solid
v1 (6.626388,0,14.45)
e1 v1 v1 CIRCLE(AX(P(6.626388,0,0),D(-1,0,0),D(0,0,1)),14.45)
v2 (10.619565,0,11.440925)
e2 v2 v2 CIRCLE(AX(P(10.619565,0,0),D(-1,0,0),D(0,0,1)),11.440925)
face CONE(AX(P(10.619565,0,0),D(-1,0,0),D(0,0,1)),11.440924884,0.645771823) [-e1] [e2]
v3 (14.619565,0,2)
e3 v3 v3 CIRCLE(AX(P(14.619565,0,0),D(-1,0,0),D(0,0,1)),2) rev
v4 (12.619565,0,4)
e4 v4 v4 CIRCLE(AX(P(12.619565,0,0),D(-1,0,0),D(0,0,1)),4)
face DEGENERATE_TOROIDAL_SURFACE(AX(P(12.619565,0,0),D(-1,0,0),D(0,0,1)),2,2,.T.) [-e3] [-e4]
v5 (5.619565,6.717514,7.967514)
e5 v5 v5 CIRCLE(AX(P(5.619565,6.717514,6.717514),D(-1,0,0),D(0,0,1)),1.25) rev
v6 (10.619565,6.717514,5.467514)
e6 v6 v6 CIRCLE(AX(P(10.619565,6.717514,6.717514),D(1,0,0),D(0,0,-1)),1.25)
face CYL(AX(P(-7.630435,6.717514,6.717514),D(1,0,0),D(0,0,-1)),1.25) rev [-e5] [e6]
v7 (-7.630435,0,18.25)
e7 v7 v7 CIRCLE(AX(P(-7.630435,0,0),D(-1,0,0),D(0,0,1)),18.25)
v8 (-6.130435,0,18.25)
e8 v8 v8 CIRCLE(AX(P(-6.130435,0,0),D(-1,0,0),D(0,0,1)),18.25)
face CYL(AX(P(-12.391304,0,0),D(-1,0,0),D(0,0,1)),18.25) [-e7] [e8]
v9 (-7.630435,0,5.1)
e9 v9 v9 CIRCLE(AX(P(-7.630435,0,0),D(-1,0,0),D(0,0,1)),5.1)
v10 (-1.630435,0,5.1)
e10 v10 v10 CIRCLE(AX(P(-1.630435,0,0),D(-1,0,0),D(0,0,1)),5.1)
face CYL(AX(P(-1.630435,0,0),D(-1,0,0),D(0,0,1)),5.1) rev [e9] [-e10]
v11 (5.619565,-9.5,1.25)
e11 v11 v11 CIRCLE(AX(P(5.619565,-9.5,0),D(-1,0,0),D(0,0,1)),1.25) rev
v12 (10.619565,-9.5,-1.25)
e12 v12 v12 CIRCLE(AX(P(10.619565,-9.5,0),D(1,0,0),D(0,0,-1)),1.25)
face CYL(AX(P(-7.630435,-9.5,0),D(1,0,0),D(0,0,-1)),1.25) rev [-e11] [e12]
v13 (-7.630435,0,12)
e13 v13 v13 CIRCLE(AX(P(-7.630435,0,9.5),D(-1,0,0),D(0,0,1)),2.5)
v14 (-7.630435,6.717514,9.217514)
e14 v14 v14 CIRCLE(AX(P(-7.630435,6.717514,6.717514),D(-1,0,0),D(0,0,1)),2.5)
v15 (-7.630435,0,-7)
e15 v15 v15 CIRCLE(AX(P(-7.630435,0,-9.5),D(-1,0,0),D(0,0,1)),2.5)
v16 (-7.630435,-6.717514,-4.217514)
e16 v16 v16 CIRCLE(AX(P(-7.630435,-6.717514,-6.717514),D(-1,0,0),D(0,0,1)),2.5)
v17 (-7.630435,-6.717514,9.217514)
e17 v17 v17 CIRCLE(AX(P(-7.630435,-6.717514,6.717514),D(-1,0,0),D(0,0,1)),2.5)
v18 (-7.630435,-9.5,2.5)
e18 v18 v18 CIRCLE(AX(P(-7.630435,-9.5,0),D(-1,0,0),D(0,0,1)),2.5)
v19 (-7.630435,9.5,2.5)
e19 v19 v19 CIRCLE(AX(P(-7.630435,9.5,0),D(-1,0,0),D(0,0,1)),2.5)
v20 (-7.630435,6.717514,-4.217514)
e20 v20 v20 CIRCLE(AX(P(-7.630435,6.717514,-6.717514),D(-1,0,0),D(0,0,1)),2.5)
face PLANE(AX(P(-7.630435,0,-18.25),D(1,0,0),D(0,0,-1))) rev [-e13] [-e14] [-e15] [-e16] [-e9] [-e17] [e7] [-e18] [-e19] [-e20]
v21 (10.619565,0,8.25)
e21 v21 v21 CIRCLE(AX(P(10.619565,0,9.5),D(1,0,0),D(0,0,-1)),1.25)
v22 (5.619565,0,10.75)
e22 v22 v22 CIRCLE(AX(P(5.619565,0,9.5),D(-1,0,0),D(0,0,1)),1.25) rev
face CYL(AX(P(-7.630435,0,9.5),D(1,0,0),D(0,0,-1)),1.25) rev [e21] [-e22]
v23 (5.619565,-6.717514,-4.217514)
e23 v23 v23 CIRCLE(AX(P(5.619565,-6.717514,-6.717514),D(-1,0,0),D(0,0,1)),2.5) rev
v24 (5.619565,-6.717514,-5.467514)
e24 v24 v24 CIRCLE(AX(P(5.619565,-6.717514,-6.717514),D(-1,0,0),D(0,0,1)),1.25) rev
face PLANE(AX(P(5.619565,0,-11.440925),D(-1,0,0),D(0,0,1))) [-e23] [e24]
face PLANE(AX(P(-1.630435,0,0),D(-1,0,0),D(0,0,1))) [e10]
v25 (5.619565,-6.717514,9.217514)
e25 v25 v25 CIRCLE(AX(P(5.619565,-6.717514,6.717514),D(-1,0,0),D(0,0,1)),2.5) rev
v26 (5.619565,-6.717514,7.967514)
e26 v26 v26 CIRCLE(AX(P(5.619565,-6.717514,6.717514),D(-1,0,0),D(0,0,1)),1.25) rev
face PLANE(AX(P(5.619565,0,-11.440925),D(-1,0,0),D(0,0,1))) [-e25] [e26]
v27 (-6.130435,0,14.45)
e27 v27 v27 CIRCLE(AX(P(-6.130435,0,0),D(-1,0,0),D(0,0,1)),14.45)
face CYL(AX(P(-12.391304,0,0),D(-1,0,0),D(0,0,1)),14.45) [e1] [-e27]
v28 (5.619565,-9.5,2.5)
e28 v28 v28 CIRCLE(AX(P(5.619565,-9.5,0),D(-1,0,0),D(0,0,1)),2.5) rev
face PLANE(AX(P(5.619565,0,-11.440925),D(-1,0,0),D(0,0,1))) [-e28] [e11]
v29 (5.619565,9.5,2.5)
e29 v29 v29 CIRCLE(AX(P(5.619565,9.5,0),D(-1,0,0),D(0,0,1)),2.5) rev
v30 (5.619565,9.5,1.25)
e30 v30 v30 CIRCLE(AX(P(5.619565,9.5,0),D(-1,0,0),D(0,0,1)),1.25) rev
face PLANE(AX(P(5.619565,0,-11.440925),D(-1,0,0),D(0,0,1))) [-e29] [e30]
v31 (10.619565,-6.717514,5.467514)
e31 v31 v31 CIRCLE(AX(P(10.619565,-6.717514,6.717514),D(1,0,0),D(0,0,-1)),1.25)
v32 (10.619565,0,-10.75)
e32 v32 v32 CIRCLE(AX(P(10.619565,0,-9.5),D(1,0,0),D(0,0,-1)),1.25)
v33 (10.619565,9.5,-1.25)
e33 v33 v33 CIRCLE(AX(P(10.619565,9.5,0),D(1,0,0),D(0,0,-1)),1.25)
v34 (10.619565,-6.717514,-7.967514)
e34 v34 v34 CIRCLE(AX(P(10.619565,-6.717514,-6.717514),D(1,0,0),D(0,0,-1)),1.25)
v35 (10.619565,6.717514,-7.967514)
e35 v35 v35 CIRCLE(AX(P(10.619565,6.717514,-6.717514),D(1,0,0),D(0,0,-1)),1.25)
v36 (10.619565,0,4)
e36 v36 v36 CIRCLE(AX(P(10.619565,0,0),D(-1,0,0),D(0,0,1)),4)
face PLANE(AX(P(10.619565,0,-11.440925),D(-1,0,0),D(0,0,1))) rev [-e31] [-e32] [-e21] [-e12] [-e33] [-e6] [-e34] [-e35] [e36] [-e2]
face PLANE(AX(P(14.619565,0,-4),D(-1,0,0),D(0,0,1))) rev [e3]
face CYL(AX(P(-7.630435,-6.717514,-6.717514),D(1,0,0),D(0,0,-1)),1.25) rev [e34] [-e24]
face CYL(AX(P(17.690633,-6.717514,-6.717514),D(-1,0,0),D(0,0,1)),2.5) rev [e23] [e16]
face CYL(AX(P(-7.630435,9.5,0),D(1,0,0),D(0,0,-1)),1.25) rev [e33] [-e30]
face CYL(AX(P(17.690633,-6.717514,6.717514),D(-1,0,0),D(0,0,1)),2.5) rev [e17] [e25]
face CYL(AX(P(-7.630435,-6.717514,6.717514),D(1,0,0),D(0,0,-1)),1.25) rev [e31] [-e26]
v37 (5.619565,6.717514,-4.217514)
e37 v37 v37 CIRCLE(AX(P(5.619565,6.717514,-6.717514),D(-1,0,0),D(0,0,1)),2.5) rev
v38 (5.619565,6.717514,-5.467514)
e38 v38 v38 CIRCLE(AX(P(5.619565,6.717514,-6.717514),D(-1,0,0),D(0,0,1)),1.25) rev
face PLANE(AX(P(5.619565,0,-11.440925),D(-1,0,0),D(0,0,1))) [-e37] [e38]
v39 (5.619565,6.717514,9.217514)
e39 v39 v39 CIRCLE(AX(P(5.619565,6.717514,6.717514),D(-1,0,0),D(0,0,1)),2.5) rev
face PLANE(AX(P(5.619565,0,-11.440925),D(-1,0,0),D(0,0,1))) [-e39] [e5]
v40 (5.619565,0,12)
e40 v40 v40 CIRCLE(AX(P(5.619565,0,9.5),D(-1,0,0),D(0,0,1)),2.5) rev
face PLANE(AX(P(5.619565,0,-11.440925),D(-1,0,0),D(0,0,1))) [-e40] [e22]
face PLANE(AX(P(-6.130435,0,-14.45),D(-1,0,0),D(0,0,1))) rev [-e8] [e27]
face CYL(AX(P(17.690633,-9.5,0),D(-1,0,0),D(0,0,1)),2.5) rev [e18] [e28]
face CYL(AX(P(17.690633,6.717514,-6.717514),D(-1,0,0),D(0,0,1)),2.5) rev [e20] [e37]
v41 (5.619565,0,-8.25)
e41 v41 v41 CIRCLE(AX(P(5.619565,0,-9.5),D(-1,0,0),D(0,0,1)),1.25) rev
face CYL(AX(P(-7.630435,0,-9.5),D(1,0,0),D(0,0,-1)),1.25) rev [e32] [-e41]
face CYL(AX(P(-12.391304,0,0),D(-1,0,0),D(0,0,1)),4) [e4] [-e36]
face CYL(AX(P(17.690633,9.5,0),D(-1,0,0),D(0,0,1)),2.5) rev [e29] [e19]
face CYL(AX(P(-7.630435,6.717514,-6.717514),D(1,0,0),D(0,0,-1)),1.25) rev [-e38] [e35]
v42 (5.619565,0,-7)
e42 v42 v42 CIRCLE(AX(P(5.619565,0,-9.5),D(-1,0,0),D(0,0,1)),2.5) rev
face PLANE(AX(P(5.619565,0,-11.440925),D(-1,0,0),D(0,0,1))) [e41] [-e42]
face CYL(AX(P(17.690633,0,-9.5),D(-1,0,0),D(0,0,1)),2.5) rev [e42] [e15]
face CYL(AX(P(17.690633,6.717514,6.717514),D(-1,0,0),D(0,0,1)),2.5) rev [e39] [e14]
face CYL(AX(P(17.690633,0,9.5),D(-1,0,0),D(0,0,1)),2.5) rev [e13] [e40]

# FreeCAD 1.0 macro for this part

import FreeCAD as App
import Part
import Sketcher

V = App.Vector
Q = App.Units.Quantity


def edges_at(feature, points):
    """Names of the edges that pass closest to the given points."""
    edges = feature.Shape.Edges
    near = lambda p: min(range(len(edges)), key=lambda i: edges[i].distToShape(Part.Vertex(*p))[0])
    return sorted({f"Edge{near(p) + 1}" for p in points})

doc = App.newDocument("Part")
params = doc.addObject("Spreadsheet::Sheet", "Params")
for row, (alias, value) in enumerate([
    ("sketch1_width", "4 mm"),
    ("sketch1_length", "5 mm"),
    ("sketch1_width2", "1.5 mm"),
    ("sketch1_height", "3.8 mm"),
    ("sketch1_width3", "22.25 mm"),
    ("revolution_angle", "360 deg"),
    ("sketch2_diameter", "2.5 mm"),
    ("fillet_radius", "2 mm"),
    ("sketch3_diameter", "5 mm"),
    ("pocket2_length", "13.25 mm"),
    ("sketch4_diameter", "10.2 mm"),
    ("pocket3_length", "6 mm"),
], start=1):
    params.set(f"A{row}", alias)
    params.set(f"B{row}", "=" + value)
    params.setAlias(f"B{row}", alias)

body = doc.addObject("PartDesign::Body", "Body")

# Sketch on XZ plane
sketch1 = body.newObject("Sketcher::SketchObject", "Sketch")
sketch1.AttachmentSupport = (doc.getObject("XZ_Plane"), [""])
sketch1.MapMode = "FlatFace"
sketch1.addGeometry([
    Part.LineSegment(V(6.6, -14.4, 0), V(-6.1, -14.4, 0)),  # 0
    Part.LineSegment(V(-6.1, -14.4, 0), V(-6.1, -18.2, 0)),  # 1
    Part.LineSegment(V(-6.1, -18.2, 0), V(-7.6, -18.2, 0)),  # 2
    Part.LineSegment(V(-7.6, -18.2, 0), V(-7.6, 0, 0)),  # 3
    Part.LineSegment(V(-7.6, 0, 0), V(14.6, 0, 0)),  # 4
    Part.LineSegment(V(14.6, 0, 0), V(14.6, -4, 0)),  # 5
    Part.LineSegment(V(14.6, -4, 0), V(10.6, -4, 0)),  # 6
    Part.LineSegment(V(10.6, -4, 0), V(10.6, -11.4, 0)),  # 7
    Part.LineSegment(V(10.6, -11.4, 0), V(6.6, -14.4, 0)),  # 8
], False)
sketch1.addConstraint([
    Sketcher.Constraint("Coincident", 0, 2, 1, 1),
    Sketcher.Constraint("Coincident", 1, 2, 2, 1),
    Sketcher.Constraint("Coincident", 2, 2, 3, 1),
    Sketcher.Constraint("Coincident", 3, 2, 4, 1),
    Sketcher.Constraint("Coincident", 4, 2, 5, 1),
    Sketcher.Constraint("Coincident", 5, 2, 6, 1),
    Sketcher.Constraint("Coincident", 6, 2, 7, 1),
    Sketcher.Constraint("Coincident", 7, 2, 8, 1),
    Sketcher.Constraint("Coincident", 8, 2, 0, 1),
    Sketcher.Constraint("Horizontal", 0),
    Sketcher.Constraint("Vertical", 1),
    Sketcher.Constraint("Horizontal", 2),
    Sketcher.Constraint("Vertical", 3),
    Sketcher.Constraint("Horizontal", 4),
    Sketcher.Constraint("Vertical", 5),
    Sketcher.Constraint("Horizontal", 6),
    Sketcher.Constraint("Vertical", 7),
    Sketcher.Constraint("PointOnObject", 3, 2, -1),
    Sketcher.Constraint("Equal", 6, 5),
    Sketcher.Constraint("DistanceX", 6, 2, 6, 1, 4.0),
    Sketcher.Constraint("Angle", 8, Q("-143 deg")),
    Sketcher.Constraint("Distance", 8, 5.0),
    Sketcher.Constraint("DistanceX", 2, 2, 2, 1, 1.5),
    Sketcher.Constraint("DistanceY", 1, 2, 1, 1, 3.8),
    Sketcher.Constraint("DistanceX", 4, 1, 4, 2, 22.25),
    Sketcher.Constraint("DistanceY", 3, 1, 3, 2, 18.25),
    Sketcher.Constraint("DistanceX", 0, 2, -1, 1, 6.130435),
])
sketch1.setExpression("Constraints[19]", "Params.sketch1_width")
sketch1.setExpression("Constraints[21]", "Params.sketch1_length")
sketch1.setExpression("Constraints[22]", "Params.sketch1_width2")
sketch1.setExpression("Constraints[23]", "Params.sketch1_height")
sketch1.setExpression("Constraints[24]", "Params.sketch1_width3")
revolution = body.newObject("PartDesign::Revolution", "Revolution")
revolution.Profile = sketch1
revolution.ReferenceAxis = (sketch1, ["H_Axis"])
revolution.setExpression("Angle", "Params.revolution_angle")

# Sketch on YZ plane
sketch2 = body.newObject("Sketcher::SketchObject", "Sketch001")
sketch2.AttachmentSupport = (doc.getObject("YZ_Plane"), [""])
sketch2.MapMode = "FlatFace"
sketch2.AttachmentOffset = App.Placement(V(0, 0, 10.619565), App.Rotation())
sketch2.addGeometry([
    Part.Circle(V(9.5, 0, 0), V(0, 0, 1), 1.2),  # 0
    Part.Circle(V(6.7, -6.7, 0), V(0, 0, 1), 1.2),  # 1
    Part.Circle(V(0, -9.5, 0), V(0, 0, 1), 1.2),  # 2
    Part.Circle(V(-6.7, -6.7, 0), V(0, 0, 1), 1.2),  # 3
    Part.Circle(V(-9.5, 0, 0), V(0, 0, 1), 1.2),  # 4
    Part.Circle(V(-6.7, 6.7, 0), V(0, 0, 1), 1.2),  # 5
    Part.Circle(V(0, 9.5, 0), V(0, 0, 1), 1.2),  # 6
    Part.Circle(V(6.7, 6.7, 0), V(0, 0, 1), 1.2),  # 7
], False)
sketch2.addConstraint([
    Sketcher.Constraint("Equal", 0, 1),
    Sketcher.Constraint("Equal", 1, 2),
    Sketcher.Constraint("Equal", 2, 3),
    Sketcher.Constraint("Equal", 3, 4),
    Sketcher.Constraint("Equal", 4, 5),
    Sketcher.Constraint("Equal", 5, 6),
    Sketcher.Constraint("Equal", 6, 7),
    Sketcher.Constraint("Symmetric", 0, 3, 4, 3, -1, 1),
    Sketcher.Constraint("Symmetric", 1, 3, 5, 3, -1, 1),
    Sketcher.Constraint("Symmetric", 2, 3, 6, 3, -1, 1),
    Sketcher.Constraint("Symmetric", 3, 3, 7, 3, -1, 1),
    Sketcher.Constraint("Symmetric", 1, 3, 3, 3, -2),
    Sketcher.Constraint("PointOnObject", 0, 3, -1),
    Sketcher.Constraint("PointOnObject", 2, 3, -2),
    Sketcher.Constraint("Diameter", 0, 2.5),
    Sketcher.Constraint("DistanceX", 4, 3, 0, 3, 19.0),
    Sketcher.Constraint("DistanceY", 2, 3, -1, 1, 9.5),
    Sketcher.Constraint("DistanceX", 3, 3, 1, 3, 13.435029),
    Sketcher.Constraint("DistanceY", 3, 3, 5, 3, 13.435029),
])
sketch2.setExpression("Constraints[14]", "Params.sketch2_diameter")
pocket1 = body.newObject("PartDesign::Pocket", "Pocket")
pocket1.Profile = sketch2
pocket1.Type = "ThroughAll"
doc.recompute()

fillet = body.newObject("PartDesign::Fillet", "Fillet")
fillet.Base = (pocket1, edges_at(pocket1, [(14.62, 0, 4)]))
fillet.setExpression("Radius", "Params.fillet_radius")

# Sketch on YZ plane
sketch3 = body.newObject("Sketcher::SketchObject", "Sketch002")
sketch3.AttachmentSupport = (doc.getObject("YZ_Plane"), [""])
sketch3.MapMode = "FlatFace"
sketch3.AttachmentOffset = App.Placement(V(0, 0, -7.630435), App.Rotation())
sketch3.addGeometry([
    Part.Circle(V(9.5, 0, 0), V(0, 0, 1), 2.5),  # 0
    Part.Circle(V(6.7, 6.7, 0), V(0, 0, 1), 2.5),  # 1
    Part.Circle(V(0, 9.5, 0), V(0, 0, 1), 2.5),  # 2
    Part.Circle(V(-6.7, 6.7, 0), V(0, 0, 1), 2.5),  # 3
    Part.Circle(V(-9.5, 0, 0), V(0, 0, 1), 2.5),  # 4
    Part.Circle(V(-6.7, -6.7, 0), V(0, 0, 1), 2.5),  # 5
    Part.Circle(V(0, -9.5, 0), V(0, 0, 1), 2.5),  # 6
    Part.Circle(V(6.7, -6.7, 0), V(0, 0, 1), 2.5),  # 7
], False)
sketch3.addConstraint([
    Sketcher.Constraint("Equal", 0, 1),
    Sketcher.Constraint("Equal", 1, 2),
    Sketcher.Constraint("Equal", 2, 3),
    Sketcher.Constraint("Equal", 3, 4),
    Sketcher.Constraint("Equal", 4, 5),
    Sketcher.Constraint("Equal", 5, 6),
    Sketcher.Constraint("Equal", 6, 7),
    Sketcher.Constraint("Symmetric", 0, 3, 4, 3, -1, 1),
    Sketcher.Constraint("Symmetric", 1, 3, 5, 3, -1, 1),
    Sketcher.Constraint("Symmetric", 2, 3, 6, 3, -1, 1),
    Sketcher.Constraint("Symmetric", 3, 3, 7, 3, -1, 1),
    Sketcher.Constraint("Symmetric", 1, 3, 3, 3, -2),
    Sketcher.Constraint("PointOnObject", 0, 3, -1),
    Sketcher.Constraint("PointOnObject", 2, 3, -2),
    Sketcher.Constraint("Diameter", 0, 5.0),
    Sketcher.Constraint("DistanceX", 4, 3, 0, 3, 19.0),
    Sketcher.Constraint("DistanceY", -1, 1, 2, 3, 9.5),
    Sketcher.Constraint("DistanceX", 3, 3, 1, 3, 13.435029),
    Sketcher.Constraint("DistanceY", 5, 3, 3, 3, 13.435029),
])
sketch3.setExpression("Constraints[14]", "Params.sketch3_diameter")
pocket2 = body.newObject("PartDesign::Pocket", "Pocket001")
pocket2.Profile = sketch3
pocket2.setExpression("Length", "Params.pocket2_length")
pocket2.Reversed = True

# Sketch on YZ plane
sketch4 = body.newObject("Sketcher::SketchObject", "Sketch003")
sketch4.AttachmentSupport = (doc.getObject("YZ_Plane"), [""])
sketch4.MapMode = "FlatFace"
sketch4.AttachmentOffset = App.Placement(V(0, 0, -7.630435), App.Rotation())
sketch4.addGeometry(Part.Circle(V(0, 0, 0), V(0, 0, 1), 5), False)
sketch4.addConstraint([
    Sketcher.Constraint("Coincident", 0, 3, -1, 1),
    Sketcher.Constraint("Diameter", 0, 10.2),
])
sketch4.setExpression("Constraints[1]", "Params.sketch4_diameter")
pocket3 = body.newObject("PartDesign::Pocket", "Pocket002")
pocket3.Profile = sketch4
pocket3.setExpression("Length", "Params.pocket3_length")
pocket3.Reversed = True

doc.recompute()
